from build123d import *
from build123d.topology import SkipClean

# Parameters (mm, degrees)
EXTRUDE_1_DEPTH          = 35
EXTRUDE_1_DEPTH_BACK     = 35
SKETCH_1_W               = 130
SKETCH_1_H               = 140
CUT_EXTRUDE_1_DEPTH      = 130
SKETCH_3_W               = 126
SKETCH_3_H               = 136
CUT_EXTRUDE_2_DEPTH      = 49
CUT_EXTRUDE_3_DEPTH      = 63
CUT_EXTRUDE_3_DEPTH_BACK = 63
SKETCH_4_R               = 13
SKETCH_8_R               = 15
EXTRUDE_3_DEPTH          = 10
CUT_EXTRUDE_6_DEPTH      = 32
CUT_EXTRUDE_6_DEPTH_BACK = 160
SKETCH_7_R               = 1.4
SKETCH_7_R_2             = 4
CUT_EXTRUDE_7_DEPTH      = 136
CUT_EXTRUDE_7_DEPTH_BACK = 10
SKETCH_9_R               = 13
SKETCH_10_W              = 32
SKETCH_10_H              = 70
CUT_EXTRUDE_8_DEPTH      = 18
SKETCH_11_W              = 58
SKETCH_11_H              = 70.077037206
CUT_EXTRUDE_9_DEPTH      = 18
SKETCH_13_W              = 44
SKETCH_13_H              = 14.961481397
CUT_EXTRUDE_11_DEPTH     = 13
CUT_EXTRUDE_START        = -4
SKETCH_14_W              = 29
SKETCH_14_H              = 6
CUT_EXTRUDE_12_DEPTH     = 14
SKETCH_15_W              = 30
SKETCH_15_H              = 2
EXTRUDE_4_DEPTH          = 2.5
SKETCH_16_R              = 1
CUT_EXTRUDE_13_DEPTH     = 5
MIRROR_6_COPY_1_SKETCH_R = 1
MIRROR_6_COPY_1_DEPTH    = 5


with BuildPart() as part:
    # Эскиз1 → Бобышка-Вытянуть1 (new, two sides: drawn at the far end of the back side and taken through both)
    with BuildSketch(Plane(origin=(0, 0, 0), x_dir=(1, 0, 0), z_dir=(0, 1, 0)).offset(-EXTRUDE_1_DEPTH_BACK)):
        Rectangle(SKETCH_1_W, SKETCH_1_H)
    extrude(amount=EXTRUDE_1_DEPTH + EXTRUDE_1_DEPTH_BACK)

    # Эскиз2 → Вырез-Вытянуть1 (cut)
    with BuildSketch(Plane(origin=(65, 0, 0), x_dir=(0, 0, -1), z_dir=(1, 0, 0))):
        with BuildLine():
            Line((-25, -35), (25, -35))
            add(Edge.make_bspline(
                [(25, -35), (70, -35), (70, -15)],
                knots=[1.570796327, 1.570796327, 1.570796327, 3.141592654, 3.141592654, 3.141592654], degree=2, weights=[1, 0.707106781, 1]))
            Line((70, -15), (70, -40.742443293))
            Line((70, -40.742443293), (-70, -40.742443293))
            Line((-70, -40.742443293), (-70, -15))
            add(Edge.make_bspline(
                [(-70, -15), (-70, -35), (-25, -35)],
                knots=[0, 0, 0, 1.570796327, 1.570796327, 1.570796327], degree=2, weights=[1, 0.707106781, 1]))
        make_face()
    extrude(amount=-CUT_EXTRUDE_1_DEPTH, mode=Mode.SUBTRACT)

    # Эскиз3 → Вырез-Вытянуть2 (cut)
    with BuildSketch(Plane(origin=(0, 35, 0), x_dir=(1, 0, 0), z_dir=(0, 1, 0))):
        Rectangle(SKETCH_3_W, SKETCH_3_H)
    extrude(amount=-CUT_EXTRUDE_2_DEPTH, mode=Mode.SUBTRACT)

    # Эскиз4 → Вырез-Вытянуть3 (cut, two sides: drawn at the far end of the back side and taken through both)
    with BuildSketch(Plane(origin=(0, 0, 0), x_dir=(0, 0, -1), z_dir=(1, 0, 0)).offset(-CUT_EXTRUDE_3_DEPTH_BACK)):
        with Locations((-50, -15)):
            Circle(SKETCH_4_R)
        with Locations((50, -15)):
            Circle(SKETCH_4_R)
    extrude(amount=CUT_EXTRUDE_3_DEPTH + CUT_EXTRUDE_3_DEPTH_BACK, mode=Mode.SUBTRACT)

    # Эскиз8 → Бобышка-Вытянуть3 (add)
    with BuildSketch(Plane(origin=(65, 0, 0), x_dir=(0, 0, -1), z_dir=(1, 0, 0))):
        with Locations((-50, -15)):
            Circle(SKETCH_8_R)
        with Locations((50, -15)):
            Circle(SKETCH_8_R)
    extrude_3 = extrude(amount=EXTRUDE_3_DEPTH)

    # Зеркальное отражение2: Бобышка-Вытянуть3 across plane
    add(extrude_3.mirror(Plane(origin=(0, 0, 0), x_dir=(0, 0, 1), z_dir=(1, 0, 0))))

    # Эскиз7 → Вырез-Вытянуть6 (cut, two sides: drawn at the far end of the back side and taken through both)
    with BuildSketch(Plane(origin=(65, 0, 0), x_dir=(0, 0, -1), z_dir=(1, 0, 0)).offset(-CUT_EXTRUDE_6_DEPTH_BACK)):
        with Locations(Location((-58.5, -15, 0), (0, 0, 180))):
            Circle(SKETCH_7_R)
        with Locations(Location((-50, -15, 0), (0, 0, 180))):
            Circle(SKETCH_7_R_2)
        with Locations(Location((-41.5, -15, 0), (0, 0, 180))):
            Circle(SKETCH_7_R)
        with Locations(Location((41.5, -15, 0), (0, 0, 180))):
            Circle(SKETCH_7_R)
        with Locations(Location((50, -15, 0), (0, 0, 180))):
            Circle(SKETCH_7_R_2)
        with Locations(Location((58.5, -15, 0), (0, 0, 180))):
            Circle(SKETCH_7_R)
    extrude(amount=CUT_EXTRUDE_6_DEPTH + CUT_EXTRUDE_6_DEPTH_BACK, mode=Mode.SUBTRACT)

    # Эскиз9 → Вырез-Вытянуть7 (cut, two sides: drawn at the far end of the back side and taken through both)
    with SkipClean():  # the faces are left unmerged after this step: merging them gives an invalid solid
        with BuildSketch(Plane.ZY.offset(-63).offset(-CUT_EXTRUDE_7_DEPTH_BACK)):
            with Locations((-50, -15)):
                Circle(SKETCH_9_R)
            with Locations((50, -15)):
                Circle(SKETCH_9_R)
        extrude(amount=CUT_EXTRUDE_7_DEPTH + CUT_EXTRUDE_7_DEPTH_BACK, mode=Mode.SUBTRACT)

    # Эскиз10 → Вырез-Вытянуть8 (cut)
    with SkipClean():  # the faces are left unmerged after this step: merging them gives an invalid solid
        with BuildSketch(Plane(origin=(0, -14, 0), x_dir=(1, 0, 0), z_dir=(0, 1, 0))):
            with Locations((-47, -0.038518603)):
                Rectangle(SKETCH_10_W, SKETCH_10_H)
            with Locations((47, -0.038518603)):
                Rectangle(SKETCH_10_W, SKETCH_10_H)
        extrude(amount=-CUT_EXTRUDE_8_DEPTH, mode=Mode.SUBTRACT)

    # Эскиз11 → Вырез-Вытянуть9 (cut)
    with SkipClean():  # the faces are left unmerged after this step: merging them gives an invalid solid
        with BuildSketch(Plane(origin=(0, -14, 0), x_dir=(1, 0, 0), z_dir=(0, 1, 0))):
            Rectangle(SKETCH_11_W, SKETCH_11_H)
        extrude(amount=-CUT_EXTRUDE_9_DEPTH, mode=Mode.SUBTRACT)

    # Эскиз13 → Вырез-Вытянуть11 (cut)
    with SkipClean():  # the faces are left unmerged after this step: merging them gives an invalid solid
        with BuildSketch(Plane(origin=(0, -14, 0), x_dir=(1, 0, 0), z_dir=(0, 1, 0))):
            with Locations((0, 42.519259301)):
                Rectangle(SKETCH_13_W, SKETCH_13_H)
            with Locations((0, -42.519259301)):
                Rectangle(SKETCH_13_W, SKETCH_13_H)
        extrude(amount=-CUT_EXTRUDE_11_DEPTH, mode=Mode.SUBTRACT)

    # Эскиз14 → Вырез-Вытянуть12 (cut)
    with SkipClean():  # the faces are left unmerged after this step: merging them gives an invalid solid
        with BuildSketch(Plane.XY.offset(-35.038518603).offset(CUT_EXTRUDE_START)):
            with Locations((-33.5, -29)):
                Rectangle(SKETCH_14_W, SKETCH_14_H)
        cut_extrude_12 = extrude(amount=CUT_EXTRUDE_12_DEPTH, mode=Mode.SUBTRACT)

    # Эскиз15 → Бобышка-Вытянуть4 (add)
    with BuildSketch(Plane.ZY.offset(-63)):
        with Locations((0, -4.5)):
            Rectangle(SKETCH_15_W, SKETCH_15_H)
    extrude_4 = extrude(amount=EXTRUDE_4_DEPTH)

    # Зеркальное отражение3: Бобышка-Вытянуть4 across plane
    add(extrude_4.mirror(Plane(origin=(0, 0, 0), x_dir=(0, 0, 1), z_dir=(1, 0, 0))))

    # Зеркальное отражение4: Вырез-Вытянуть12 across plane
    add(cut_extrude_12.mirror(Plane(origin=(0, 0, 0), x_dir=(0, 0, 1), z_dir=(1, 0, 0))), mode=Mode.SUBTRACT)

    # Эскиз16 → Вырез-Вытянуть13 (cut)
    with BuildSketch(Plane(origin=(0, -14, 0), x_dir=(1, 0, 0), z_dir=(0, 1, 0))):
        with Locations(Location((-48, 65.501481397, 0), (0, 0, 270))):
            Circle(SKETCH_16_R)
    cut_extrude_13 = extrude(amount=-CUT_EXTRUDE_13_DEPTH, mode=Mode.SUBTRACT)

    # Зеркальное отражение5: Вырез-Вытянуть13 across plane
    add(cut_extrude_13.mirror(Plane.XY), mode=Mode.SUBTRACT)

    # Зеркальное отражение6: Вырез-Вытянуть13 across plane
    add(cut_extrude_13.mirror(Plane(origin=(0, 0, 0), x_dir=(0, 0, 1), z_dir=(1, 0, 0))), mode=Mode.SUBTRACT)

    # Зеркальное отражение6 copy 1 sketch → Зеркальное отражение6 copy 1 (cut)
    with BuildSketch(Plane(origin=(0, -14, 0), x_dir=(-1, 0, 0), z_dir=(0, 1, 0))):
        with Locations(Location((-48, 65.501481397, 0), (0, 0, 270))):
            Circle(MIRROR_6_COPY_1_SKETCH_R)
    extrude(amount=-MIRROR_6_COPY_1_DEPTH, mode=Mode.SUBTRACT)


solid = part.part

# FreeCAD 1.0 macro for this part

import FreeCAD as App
import Part
import Sketcher

V = App.Vector
Q = App.Units.Quantity


def add_polygon(sketch, points):
    """Adds a closed chain of lines whose ends are joined by coincident constraints."""
    first, n = sketch.GeometryCount, len(points)
    for a, b in zip(points, points[1:] + points[:1]):
        sketch.addGeometry(Part.LineSegment(App.Vector(*a, 0), App.Vector(*b, 0)), False)
    for i in range(n):
        sketch.addConstraint(Sketcher.Constraint("Coincident", first + i, 2, first + (i + 1) % n, 1))

doc = App.newDocument("Part")
body = doc.addObject("PartDesign::Body", "Body")

# Sketch on XZ plane
sketch1 = body.newObject("Sketcher::SketchObject", "Sketch")
sketch1.AttachmentSupport = (doc.getObject("XZ_Plane"), [""])
sketch1.MapMode = "FlatFace"
add_polygon(sketch1, [(-65, -70), (-65, 70), (65, 70), (65, -70)])  # lines 0-3
sketch1.addConstraint(Sketcher.Constraint("Vertical", 0))
sketch1.addConstraint(Sketcher.Constraint("Horizontal", 1))
sketch1.addConstraint(Sketcher.Constraint("Vertical", 2))
sketch1.addConstraint(Sketcher.Constraint("Horizontal", 3))
sketch1.addConstraint(Sketcher.Constraint("Symmetric", 0, 2, 2, 2, -1, 1))
sketch1.addConstraint(Sketcher.Constraint("DistanceX", 1, 1, 1, 2, Q("130 mm")))
sketch1.addConstraint(Sketcher.Constraint("DistanceY", 0, 1, 0, 2, Q("140 mm")))
pad1 = body.newObject("PartDesign::Pad", "Pad")
pad1.Profile = sketch1
pad1.Type = "TwoLengths"
pad1.Length = 35
pad1.Length2 = 35
pad1.Reversed = True

# Sketch on YZ plane
sketch2 = body.newObject("Sketcher::SketchObject", "Sketch001")
sketch2.AttachmentSupport = (doc.getObject("YZ_Plane"), [""])
sketch2.MapMode = "FlatFace"
sketch2.AttachmentOffset = App.Placement(V(0, 0, 65), App.Rotation())
sketch2.addGeometry(Part.LineSegment(V(-35, -25, 0), V(-35, 25, 0)), False)
sketch2.addGeometry(Part.BSplineCurve([V(-15, 70, 0), V(-35, 70, 0), V(-35, 25, 0)], [3, 3], [0, 1.570796327], False, 2, [1, 0.707106781, 1], False), False)
sketch2.addGeometry(Part.LineSegment(V(-15, 70, 0), V(-40.742443, 70, 0)), False)
sketch2.addGeometry(Part.LineSegment(V(-40.742443, 70, 0), V(-40.742443, -70, 0)), False)
sketch2.addGeometry(Part.LineSegment(V(-40.742443, -70, 0), V(-15, -70, 0)), False)
sketch2.addGeometry(Part.BSplineCurve([V(-35, -25, 0), V(-35, -70, 0), V(-15, -70, 0)], [3, 3], [1.570796327, 3.141592654], False, 2, [1, 0.707106781, 1], False), False)
sketch2.addConstraint(Sketcher.Constraint("Block", 1))
sketch2.addConstraint(Sketcher.Constraint("Block", 5))
sketch2.addConstraint(Sketcher.Constraint("Coincident", 0, 2, 1, 2))
sketch2.addConstraint(Sketcher.Constraint("Coincident", 1, 1, 2, 1))
sketch2.addConstraint(Sketcher.Constraint("Coincident", 2, 2, 3, 1))
sketch2.addConstraint(Sketcher.Constraint("Coincident", 3, 2, 4, 1))
sketch2.addConstraint(Sketcher.Constraint("Coincident", 4, 2, 5, 2))
sketch2.addConstraint(Sketcher.Constraint("Coincident", 5, 1, 0, 1))
sketch2.addConstraint(Sketcher.Constraint("Horizontal", 2))
sketch2.addConstraint(Sketcher.Constraint("Vertical", 3))
sketch2.addConstraint(Sketcher.Constraint("Horizontal", 4))
sketch2.addConstraint(Sketcher.Constraint("DistanceX", 2, 2, 2, 1, Q("25.742443 mm")))
pocket1 = body.newObject("PartDesign::Pocket", "Pocket")
pocket1.Profile = sketch2
pocket1.Length = 130

# Sketch on XZ plane
sketch3 = body.newObject("Sketcher::SketchObject", "Sketch002")
sketch3.AttachmentSupport = (doc.getObject("XZ_Plane"), [""])
sketch3.MapMode = "FlatFace"
sketch3.AttachmentOffset = App.Placement(V(0, 0, -35), App.Rotation())
add_polygon(sketch3, [(-63, -68), (-63, 68), (63, 68), (63, -68)])  # lines 0-3
sketch3.addConstraint(Sketcher.Constraint("Vertical", 0))
sketch3.addConstraint(Sketcher.Constraint("Horizontal", 1))
sketch3.addConstraint(Sketcher.Constraint("Vertical", 2))
sketch3.addConstraint(Sketcher.Constraint("Horizontal", 3))
sketch3.addConstraint(Sketcher.Constraint("Symmetric", 0, 2, 2, 2, -1, 1))
sketch3.addConstraint(Sketcher.Constraint("DistanceX", 1, 1, 1, 2, Q("126 mm")))
sketch3.addConstraint(Sketcher.Constraint("DistanceY", 0, 1, 0, 2, Q("136 mm")))
pocket2 = body.newObject("PartDesign::Pocket", "Pocket001")
pocket2.Profile = sketch3
pocket2.Length = 49
pocket2.Reversed = True

# Sketch on YZ plane
sketch4 = body.newObject("Sketcher::SketchObject", "Sketch003")
sketch4.AttachmentSupport = (doc.getObject("YZ_Plane"), [""])
sketch4.MapMode = "FlatFace"
sketch4.addGeometry(Part.Circle(V(-15, 50, 0), V(0, 0, 1), 13), False)
sketch4.addGeometry(Part.Circle(V(-15, -50, 0), V(0, 0, 1), 13), False)
sketch4.addConstraint(Sketcher.Constraint("Equal", 0, 1))
sketch4.addConstraint(Sketcher.Constraint("Symmetric", 0, 3, 1, 3, -1))
sketch4.addConstraint(Sketcher.Constraint("Diameter", 0, Q("26 mm")))
sketch4.addConstraint(Sketcher.Constraint("DistanceX", 0, 3, -1, 1, Q("15 mm")))
sketch4.addConstraint(Sketcher.Constraint("DistanceY", -1, 1, 0, 3, Q("50 mm")))
pocket3 = body.newObject("PartDesign::Pocket", "Pocket002")
pocket3.Profile = sketch4
pocket3.Type = "TwoLengths"
pocket3.Length = 63
pocket3.Length2 = 63
pocket3.Reversed = True

# Sketch on YZ plane
sketch5 = body.newObject("Sketcher::SketchObject", "Sketch004")
sketch5.AttachmentSupport = (doc.getObject("YZ_Plane"), [""])
sketch5.MapMode = "FlatFace"
sketch5.AttachmentOffset = App.Placement(V(0, 0, 65), App.Rotation())
sketch5.addGeometry(Part.Circle(V(-15, 50, 0), V(0, 0, 1), 15), False)
sketch5.addGeometry(Part.Circle(V(-15, -50, 0), V(0, 0, 1), 15), False)
sketch5.addConstraint(Sketcher.Constraint("Equal", 0, 1))
sketch5.addConstraint(Sketcher.Constraint("Symmetric", 0, 3, 1, 3, -1))
sketch5.addConstraint(Sketcher.Constraint("Diameter", 0, Q("30 mm")))
sketch5.addConstraint(Sketcher.Constraint("DistanceX", 0, 3, -1, 1, Q("15 mm")))
sketch5.addConstraint(Sketcher.Constraint("DistanceY", -1, 1, 0, 3, Q("50 mm")))
pad2 = body.newObject("PartDesign::Pad", "Pad001")
pad2.Profile = sketch5
pad2.Length = 10
doc.recompute()

mirrored = body.newObject("PartDesign::Mirrored", "Mirrored")
mirrored.Originals = [pad2]
mirrored.MirrorPlane = (doc.getObject("YZ_Plane"), [""])
body.Tip = mirrored

# Sketch on YZ plane
sketch6 = body.newObject("Sketcher::SketchObject", "Sketch005")
sketch6.AttachmentSupport = (doc.getObject("YZ_Plane"), [""])
sketch6.MapMode = "FlatFace"
sketch6.AttachmentOffset = App.Placement(V(0, 0, 65), App.Rotation())
sketch6.addGeometry(Part.Circle(V(-15, 58.5, 0), V(0, 0, 1), 1.4), False)
sketch6.addGeometry(Part.Circle(V(-15, 50, 0), V(0, 0, 1), 4), False)
sketch6.addGeometry(Part.Circle(V(-15, 41.5, 0), V(0, 0, 1), 1.4), False)
sketch6.addGeometry(Part.Circle(V(-15, -41.5, 0), V(0, 0, 1), 1.4), False)
sketch6.addGeometry(Part.Circle(V(-15, -50, 0), V(0, 0, 1), 4), False)
sketch6.addGeometry(Part.Circle(V(-15, -58.5, 0), V(0, 0, 1), 1.4), False)
sketch6.addConstraint(Sketcher.Constraint("Equal", 0, 2))
sketch6.addConstraint(Sketcher.Constraint("Equal", 2, 3))
sketch6.addConstraint(Sketcher.Constraint("Equal", 1, 4))
sketch6.addConstraint(Sketcher.Constraint("Equal", 3, 5))
sketch6.addConstraint(Sketcher.Constraint("Symmetric", 2, 3, 3, 3, -1))
sketch6.addConstraint(Sketcher.Constraint("Symmetric", 1, 3, 4, 3, -1))
sketch6.addConstraint(Sketcher.Constraint("Symmetric", 0, 3, 5, 3, -1))
sketch6.addConstraint(Sketcher.Constraint("Vertical", 0, 3, 1, 3))
sketch6.addConstraint(Sketcher.Constraint("Vertical", 1, 3, 2, 3))
sketch6.addConstraint(Sketcher.Constraint("Diameter", 1, Q("8 mm")))
sketch6.addConstraint(Sketcher.Constraint("Diameter", 0, Q("2.8 mm")))
sketch6.addConstraint(Sketcher.Constraint("DistanceX", 0, 3, -1, 1, Q("15 mm")))
sketch6.addConstraint(Sketcher.Constraint("DistanceY", -1, 1, 1, 3, Q("50 mm")))
sketch6.addConstraint(Sketcher.Constraint("DistanceY", 2, 3, 0, 3, Q("17 mm")))
sketch6.addConstraint(Sketcher.Constraint("DistanceY", 3, 3, 2, 3, Q("83 mm")))
pocket4 = body.newObject("PartDesign::Pocket", "Pocket003")
pocket4.Profile = sketch6
pocket4.Type = "ThroughAll"
pocket4.Midplane = True

# Sketch on YZ plane
sketch7 = body.newObject("Sketcher::SketchObject", "Sketch006")
sketch7.AttachmentSupport = (doc.getObject("YZ_Plane"), [""])
sketch7.MapMode = "FlatFace"
sketch7.AttachmentOffset = App.Placement(V(0, 0, 63), App.Rotation())
sketch7.addGeometry(Part.Circle(V(-15, -50, 0), V(0, 0, 1), 13), False)
sketch7.addGeometry(Part.Circle(V(-15, 50, 0), V(0, 0, 1), 13), False)
sketch7.addConstraint(Sketcher.Constraint("Equal", 0, 1))
sketch7.addConstraint(Sketcher.Constraint("Symmetric", 0, 3, 1, 3, -1))
sketch7.addConstraint(Sketcher.Constraint("Diameter", 0, Q("26 mm")))
sketch7.addConstraint(Sketcher.Constraint("DistanceX", 0, 3, -1, 1, Q("15 mm")))
sketch7.addConstraint(Sketcher.Constraint("DistanceY", 0, 3, -1, 1, Q("50 mm")))
pocket5 = body.newObject("PartDesign::Pocket", "Pocket004")
pocket5.Profile = sketch7
pocket5.Type = "TwoLengths"
pocket5.Length = 136
pocket5.Length2 = 10

# Sketch on XZ plane
sketch8 = body.newObject("Sketcher::SketchObject", "Sketch007")
sketch8.AttachmentSupport = (doc.getObject("XZ_Plane"), [""])
sketch8.MapMode = "FlatFace"
sketch8.AttachmentOffset = App.Placement(V(0, 0, 14), App.Rotation())
add_polygon(sketch8, [(-63, -35), (-63, 35), (-31, 35), (-31, -35)])  # lines 0-3
add_polygon(sketch8, [(31, -35), (31, 35), (63, 35), (63, -35)])  # lines 4-7
sketch8.addConstraint(Sketcher.Constraint("Vertical", 0))
sketch8.addConstraint(Sketcher.Constraint("Horizontal", 1))
sketch8.addConstraint(Sketcher.Constraint("Vertical", 2))
sketch8.addConstraint(Sketcher.Constraint("Horizontal", 3))
sketch8.addConstraint(Sketcher.Constraint("Vertical", 4))
sketch8.addConstraint(Sketcher.Constraint("Horizontal", 5))
sketch8.addConstraint(Sketcher.Constraint("Vertical", 6))
sketch8.addConstraint(Sketcher.Constraint("Horizontal", 7))
sketch8.addConstraint(Sketcher.Constraint("Symmetric", 1, 2, 4, 2, -2))
sketch8.addConstraint(Sketcher.Constraint("Symmetric", 3, 2, 6, 2, -2))
sketch8.addConstraint(Sketcher.Constraint("DistanceX", 1, 1, 1, 2, Q("32 mm")))
sketch8.addConstraint(Sketcher.Constraint("DistanceY", 0, 1, 0, 2, Q("70 mm")))
sketch8.addConstraint(Sketcher.Constraint("DistanceX", 0, 2, -1, 1, Q("63 mm")))
sketch8.addConstraint(Sketcher.Constraint("DistanceY", -1, 1, 0, 2, Q("35.038519 mm")))
pocket6 = body.newObject("PartDesign::Pocket", "Pocket005")
pocket6.Profile = sketch8
pocket6.Length = 18
pocket6.Reversed = True

# Sketch on XZ plane
sketch9 = body.newObject("Sketcher::SketchObject", "Sketch008")
sketch9.AttachmentSupport = (doc.getObject("XZ_Plane"), [""])
sketch9.MapMode = "FlatFace"
sketch9.AttachmentOffset = App.Placement(V(0, 0, 14), App.Rotation())
add_polygon(sketch9, [(-29, -35), (-29, 35), (29, 35), (29, -35)])  # lines 0-3
sketch9.addConstraint(Sketcher.Constraint("Vertical", 0))
sketch9.addConstraint(Sketcher.Constraint("Horizontal", 1))
sketch9.addConstraint(Sketcher.Constraint("Vertical", 2))
sketch9.addConstraint(Sketcher.Constraint("Horizontal", 3))
sketch9.addConstraint(Sketcher.Constraint("Symmetric", 0, 2, 2, 2, -1, 1))
sketch9.addConstraint(Sketcher.Constraint("DistanceX", 1, 1, 1, 2, Q("58 mm")))
sketch9.addConstraint(Sketcher.Constraint("DistanceY", 0, 1, 0, 2, Q("70.077037 mm")))
pocket7 = body.newObject("PartDesign::Pocket", "Pocket006")
pocket7.Profile = sketch9
pocket7.Length = 18
pocket7.Reversed = True

# Sketch on XZ plane
sketch10 = body.newObject("Sketcher::SketchObject", "Sketch009")
sketch10.AttachmentSupport = (doc.getObject("XZ_Plane"), [""])
sketch10.MapMode = "FlatFace"
sketch10.AttachmentOffset = App.Placement(V(0, 0, 14), App.Rotation())
add_polygon(sketch10, [(-22, -50), (-22, -35), (22, -35), (22, -50)])  # lines 0-3
add_polygon(sketch10, [(-22, 35), (-22, 50), (22, 50), (22, 35)])  # lines 4-7
sketch10.addConstraint(Sketcher.Constraint("Vertical", 0))
sketch10.addConstraint(Sketcher.Constraint("Horizontal", 1))
sketch10.addConstraint(Sketcher.Constraint("Vertical", 2))
sketch10.addConstraint(Sketcher.Constraint("Horizontal", 3))
sketch10.addConstraint(Sketcher.Constraint("Vertical", 4))
sketch10.addConstraint(Sketcher.Constraint("Horizontal", 5))
sketch10.addConstraint(Sketcher.Constraint("Vertical", 6))
sketch10.addConstraint(Sketcher.Constraint("Horizontal", 7))
sketch10.addConstraint(Sketcher.Constraint("Symmetric", 2, 2, 4, 2, -1, 1))
sketch10.addConstraint(Sketcher.Constraint("Symmetric", 0, 2, 6, 2, -1, 1))
sketch10.addConstraint(Sketcher.Constraint("Vertical", 3, 2, 4, 2))
sketch10.addConstraint(Sketcher.Constraint("DistanceX", 1, 1, 1, 2, Q("44 mm")))
sketch10.addConstraint(Sketcher.Constraint("DistanceY", 2, 2, -1, 1, Q("50 mm")))
sketch10.addConstraint(Sketcher.Constraint("DistanceY", 0, 1, 0, 2, Q("14.961481 mm")))
pocket8 = body.newObject("PartDesign::Pocket", "Pocket007")
pocket8.Profile = sketch10
pocket8.Length = 13
pocket8.Reversed = True

# Sketch on XY plane
sketch11 = body.newObject("Sketcher::SketchObject", "Sketch010")
sketch11.AttachmentSupport = (doc.getObject("XY_Plane"), [""])
sketch11.MapMode = "FlatFace"
sketch11.AttachmentOffset = App.Placement(V(0, 0, -39.038519), App.Rotation())
add_polygon(sketch11, [(-48, -26), (-48, -32), (-19, -32), (-19, -26)])  # lines 0-3
sketch11.addConstraint(Sketcher.Constraint("Vertical", 0))
sketch11.addConstraint(Sketcher.Constraint("Horizontal", 1))
sketch11.addConstraint(Sketcher.Constraint("Vertical", 2))
sketch11.addConstraint(Sketcher.Constraint("Horizontal", 3))
sketch11.addConstraint(Sketcher.Constraint("DistanceX", 1, 1, 1, 2, Q("29 mm")))
sketch11.addConstraint(Sketcher.Constraint("DistanceY", 0, 2, 0, 1, Q("6 mm")))
sketch11.addConstraint(Sketcher.Constraint("DistanceX", 0, 2, -1, 1, Q("48 mm")))
sketch11.addConstraint(Sketcher.Constraint("DistanceY", 0, 2, -1, 1, Q("32 mm")))
pocket9 = body.newObject("PartDesign::Pocket", "Pocket008")
pocket9.Profile = sketch11
pocket9.Length = 14
pocket9.Reversed = True

# Sketch on YZ plane
sketch12 = body.newObject("Sketcher::SketchObject", "Sketch011")
sketch12.AttachmentSupport = (doc.getObject("YZ_Plane"), [""])
sketch12.MapMode = "FlatFace"
sketch12.AttachmentOffset = App.Placement(V(0, 0, 63), App.Rotation())
add_polygon(sketch12, [(-3.5, -15), (-5.5, -15), (-5.5, 15), (-3.5, 15)])  # lines 0-3
sketch12.addConstraint(Sketcher.Constraint("Horizontal", 0))
sketch12.addConstraint(Sketcher.Constraint("Vertical", 1))
sketch12.addConstraint(Sketcher.Constraint("Horizontal", 2))
sketch12.addConstraint(Sketcher.Constraint("Vertical", 3))
sketch12.addConstraint(Sketcher.Constraint("DistanceX", 0, 2, 0, 1, Q("2 mm")))
sketch12.addConstraint(Sketcher.Constraint("DistanceY", 1, 1, 1, 2, Q("30 mm")))
sketch12.addConstraint(Sketcher.Constraint("DistanceY", 0, 2, -1, 1, Q("15 mm")))
sketch12.addConstraint(Sketcher.Constraint("DistanceX", 0, 2, -1, 1, Q("5.5 mm")))
pad3 = body.newObject("PartDesign::Pad", "Pad002")
pad3.Profile = sketch12
pad3.Length = 2.5
pad3.Reversed = True
doc.recompute()

mirrored2 = body.newObject("PartDesign::Mirrored", "Mirrored001")
mirrored2.Originals = [pad3]
mirrored2.MirrorPlane = (doc.getObject("YZ_Plane"), [""])
body.Tip = mirrored2
doc.recompute()

mirrored3 = body.newObject("PartDesign::Mirrored", "Mirrored002")
mirrored3.Originals = [pocket9]
mirrored3.MirrorPlane = (doc.getObject("YZ_Plane"), [""])
body.Tip = mirrored3

# Sketch on XZ plane
sketch13 = body.newObject("Sketcher::SketchObject", "Sketch012")
sketch13.AttachmentSupport = (doc.getObject("XZ_Plane"), [""])
sketch13.MapMode = "FlatFace"
sketch13.AttachmentOffset = App.Placement(V(0, 0, 14), App.Rotation())
sketch13.addGeometry(Part.Circle(V(-48, -65.5, 0), V(0, 0, 1), 1), False)
sketch13.addConstraint(Sketcher.Constraint("Diameter", 0, Q("2 mm")))
sketch13.addConstraint(Sketcher.Constraint("DistanceX", 0, 3, -1, 1, Q("48 mm")))
sketch13.addConstraint(Sketcher.Constraint("DistanceY", 0, 3, -1, 1, Q("65.501481 mm")))
pocket10 = body.newObject("PartDesign::Pocket", "Pocket009")
pocket10.Profile = sketch13
pocket10.Length = 5
pocket10.Reversed = True
doc.recompute()

mirrored4 = body.newObject("PartDesign::Mirrored", "Mirrored003")
mirrored4.Originals = [pocket10]
mirrored4.MirrorPlane = (doc.getObject("XY_Plane"), [""])
body.Tip = mirrored4
doc.recompute()

mirrored5 = body.newObject("PartDesign::Mirrored", "Mirrored004")
mirrored5.Originals = [pocket10]
mirrored5.MirrorPlane = (doc.getObject("YZ_Plane"), [""])
body.Tip = mirrored5

# Sketch on XZ plane
sketch14 = body.newObject("Sketcher::SketchObject", "Sketch013")
sketch14.AttachmentSupport = (doc.getObject("XZ_Plane"), [""])
sketch14.MapMode = "FlatFace"
sketch14.AttachmentOffset = App.Placement(V(0, 0, 14), App.Rotation())
sketch14.addGeometry(Part.Circle(V(48, 65.5, 0), V(0, 0, 1), 1), False)
sketch14.addConstraint(Sketcher.Constraint("Diameter", 0, Q("2 mm")))
sketch14.addConstraint(Sketcher.Constraint("DistanceX", -1, 1, 0, 3, Q("48 mm")))
sketch14.addConstraint(Sketcher.Constraint("DistanceY", -1, 1, 0, 3, Q("65.501481 mm")))
pocket11 = body.newObject("PartDesign::Pocket", "Pocket010")
pocket11.Profile = sketch14
pocket11.Length = 5
pocket11.Reversed = True

doc.recompute()
